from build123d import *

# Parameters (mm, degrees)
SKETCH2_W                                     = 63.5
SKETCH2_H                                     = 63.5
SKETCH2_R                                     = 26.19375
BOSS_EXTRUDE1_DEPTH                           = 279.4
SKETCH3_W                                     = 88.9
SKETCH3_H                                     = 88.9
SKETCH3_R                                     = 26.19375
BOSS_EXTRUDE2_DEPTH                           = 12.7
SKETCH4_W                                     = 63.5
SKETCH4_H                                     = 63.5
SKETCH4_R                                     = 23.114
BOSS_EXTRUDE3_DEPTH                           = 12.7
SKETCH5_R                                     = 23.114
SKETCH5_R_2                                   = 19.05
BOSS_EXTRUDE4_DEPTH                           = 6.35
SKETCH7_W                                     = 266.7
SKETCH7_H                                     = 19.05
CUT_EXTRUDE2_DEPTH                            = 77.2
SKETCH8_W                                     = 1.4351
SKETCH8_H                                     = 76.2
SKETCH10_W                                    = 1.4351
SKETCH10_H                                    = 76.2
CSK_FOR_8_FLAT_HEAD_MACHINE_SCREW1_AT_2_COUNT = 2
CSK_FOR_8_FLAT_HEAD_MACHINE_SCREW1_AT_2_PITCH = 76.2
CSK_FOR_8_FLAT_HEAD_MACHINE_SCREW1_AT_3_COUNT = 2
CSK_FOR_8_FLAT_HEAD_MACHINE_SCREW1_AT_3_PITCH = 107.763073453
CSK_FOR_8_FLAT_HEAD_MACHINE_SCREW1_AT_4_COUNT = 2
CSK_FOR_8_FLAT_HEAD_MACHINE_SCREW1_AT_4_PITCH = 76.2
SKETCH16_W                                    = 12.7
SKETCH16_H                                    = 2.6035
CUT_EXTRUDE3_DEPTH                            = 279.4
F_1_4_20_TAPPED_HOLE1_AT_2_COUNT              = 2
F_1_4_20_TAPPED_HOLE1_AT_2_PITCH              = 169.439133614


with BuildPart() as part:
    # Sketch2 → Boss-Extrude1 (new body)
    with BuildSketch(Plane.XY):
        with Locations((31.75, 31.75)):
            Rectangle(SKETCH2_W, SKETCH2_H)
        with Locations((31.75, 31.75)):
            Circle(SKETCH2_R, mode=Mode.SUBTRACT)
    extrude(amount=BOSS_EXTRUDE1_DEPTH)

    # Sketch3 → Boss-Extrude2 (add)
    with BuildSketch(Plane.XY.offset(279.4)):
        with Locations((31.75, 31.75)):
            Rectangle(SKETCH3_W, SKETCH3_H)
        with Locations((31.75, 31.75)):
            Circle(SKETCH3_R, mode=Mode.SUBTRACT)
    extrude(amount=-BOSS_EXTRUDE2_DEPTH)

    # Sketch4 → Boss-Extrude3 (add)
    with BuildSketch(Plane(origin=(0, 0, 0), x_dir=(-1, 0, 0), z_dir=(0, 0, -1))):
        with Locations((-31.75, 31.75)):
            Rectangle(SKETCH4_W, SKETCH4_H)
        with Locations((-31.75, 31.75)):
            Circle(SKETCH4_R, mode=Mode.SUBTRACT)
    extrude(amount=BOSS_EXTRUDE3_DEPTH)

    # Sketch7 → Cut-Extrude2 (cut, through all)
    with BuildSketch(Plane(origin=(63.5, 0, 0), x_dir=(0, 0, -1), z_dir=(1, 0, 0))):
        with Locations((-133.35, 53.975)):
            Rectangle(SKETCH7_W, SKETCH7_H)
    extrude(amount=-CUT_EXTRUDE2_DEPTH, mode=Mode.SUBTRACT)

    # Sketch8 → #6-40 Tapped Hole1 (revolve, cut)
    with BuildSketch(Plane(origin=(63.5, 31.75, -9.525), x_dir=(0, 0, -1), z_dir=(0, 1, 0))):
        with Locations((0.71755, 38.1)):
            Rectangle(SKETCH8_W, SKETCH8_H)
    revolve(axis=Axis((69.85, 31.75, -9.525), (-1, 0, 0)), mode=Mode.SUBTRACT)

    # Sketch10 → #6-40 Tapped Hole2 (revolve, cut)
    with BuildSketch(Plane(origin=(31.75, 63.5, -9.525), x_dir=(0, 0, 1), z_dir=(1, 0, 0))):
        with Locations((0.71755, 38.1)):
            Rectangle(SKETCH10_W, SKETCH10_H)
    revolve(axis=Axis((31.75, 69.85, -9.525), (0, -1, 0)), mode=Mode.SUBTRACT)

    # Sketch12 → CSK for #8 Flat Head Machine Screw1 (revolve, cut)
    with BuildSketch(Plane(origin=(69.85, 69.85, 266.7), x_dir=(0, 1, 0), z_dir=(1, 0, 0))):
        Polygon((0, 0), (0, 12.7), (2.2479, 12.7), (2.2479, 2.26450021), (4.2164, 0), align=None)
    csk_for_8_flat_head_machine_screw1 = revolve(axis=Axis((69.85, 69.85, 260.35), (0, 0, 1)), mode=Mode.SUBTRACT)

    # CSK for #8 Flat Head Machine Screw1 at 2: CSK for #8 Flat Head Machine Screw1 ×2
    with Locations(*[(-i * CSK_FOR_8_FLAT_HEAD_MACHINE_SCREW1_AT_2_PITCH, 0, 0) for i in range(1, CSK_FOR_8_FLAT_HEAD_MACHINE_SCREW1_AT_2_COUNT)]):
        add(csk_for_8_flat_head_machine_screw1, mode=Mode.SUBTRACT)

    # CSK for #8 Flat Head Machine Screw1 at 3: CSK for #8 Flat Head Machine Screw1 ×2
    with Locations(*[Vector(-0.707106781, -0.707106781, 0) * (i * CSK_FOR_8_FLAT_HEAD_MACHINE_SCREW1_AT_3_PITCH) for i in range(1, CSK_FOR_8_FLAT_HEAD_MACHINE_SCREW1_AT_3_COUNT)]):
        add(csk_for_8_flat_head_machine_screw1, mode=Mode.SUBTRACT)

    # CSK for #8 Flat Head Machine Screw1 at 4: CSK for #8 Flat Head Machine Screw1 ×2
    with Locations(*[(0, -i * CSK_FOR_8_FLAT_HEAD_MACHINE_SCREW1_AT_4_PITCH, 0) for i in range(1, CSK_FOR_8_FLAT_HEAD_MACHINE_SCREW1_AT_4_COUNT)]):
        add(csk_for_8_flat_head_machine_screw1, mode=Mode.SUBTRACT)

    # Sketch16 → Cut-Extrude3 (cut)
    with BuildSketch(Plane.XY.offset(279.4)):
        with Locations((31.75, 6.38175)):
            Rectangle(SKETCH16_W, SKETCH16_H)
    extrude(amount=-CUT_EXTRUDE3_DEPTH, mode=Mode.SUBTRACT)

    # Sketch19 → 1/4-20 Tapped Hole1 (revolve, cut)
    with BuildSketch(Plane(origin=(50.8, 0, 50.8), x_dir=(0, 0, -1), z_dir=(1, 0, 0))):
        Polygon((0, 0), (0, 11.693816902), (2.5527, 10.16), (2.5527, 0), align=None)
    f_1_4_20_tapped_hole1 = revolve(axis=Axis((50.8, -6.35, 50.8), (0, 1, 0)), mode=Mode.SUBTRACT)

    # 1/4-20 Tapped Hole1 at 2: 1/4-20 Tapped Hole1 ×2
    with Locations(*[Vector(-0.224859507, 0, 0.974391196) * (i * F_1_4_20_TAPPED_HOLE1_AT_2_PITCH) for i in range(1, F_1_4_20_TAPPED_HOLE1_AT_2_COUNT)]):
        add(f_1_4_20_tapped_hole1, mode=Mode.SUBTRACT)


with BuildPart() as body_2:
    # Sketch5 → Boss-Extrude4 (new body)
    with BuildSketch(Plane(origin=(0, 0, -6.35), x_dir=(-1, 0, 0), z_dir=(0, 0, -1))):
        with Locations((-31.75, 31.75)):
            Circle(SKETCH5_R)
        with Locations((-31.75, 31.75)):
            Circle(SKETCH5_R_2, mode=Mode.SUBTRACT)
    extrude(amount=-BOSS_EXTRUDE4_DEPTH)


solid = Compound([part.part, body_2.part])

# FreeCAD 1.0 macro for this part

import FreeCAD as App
import Part
import Sketcher
from FreeCAD import Vector
Q = App.Units.Quantity

doc = App.newDocument("Part")
body = doc.addObject("PartDesign::Body", "Body")

sketch1 = body.newObject("Sketcher::SketchObject", "Sketch")
sketch1.AttachmentSupport = (doc.getObject("XY_Plane"), [""])
sketch1.MapMode = "FlatFace"
sketch1.addGeometry([
    Part.LineSegment(Vector(0, 64, 0), Vector(0, 0, 0)),
    Part.LineSegment(Vector(0, 0, 0), Vector(64, 0, 0)),
    Part.LineSegment(Vector(64, 0, 0), Vector(64, 64, 0)),
    Part.LineSegment(Vector(64, 64, 0), Vector(0, 64, 0)),
    Part.Circle(Vector(32, 32, 0), Vector(0, 0, 1), 26),
], False)
sketch1.addConstraint([
    Sketcher.Constraint("Coincident", 0, 2, 1, 1),
    Sketcher.Constraint("Coincident", 1, 2, 2, 1),
    Sketcher.Constraint("Coincident", 2, 2, 3, 1),
    Sketcher.Constraint("Coincident", 3, 2, 0, 1),
    Sketcher.Constraint("Vertical", 0),
    Sketcher.Constraint("Horizontal", 1),
    Sketcher.Constraint("Vertical", 2),
    Sketcher.Constraint("Horizontal", 3),
    Sketcher.Constraint("Coincident", 0, 2, -1, 1),
    Sketcher.Constraint("Equal", 3, 0),
    Sketcher.Constraint("Diameter", 4, Q("2.0625 in")),
    Sketcher.Constraint("DistanceX", 1, 1, 1, 2, Q("2.5 in")),
    Sketcher.Constraint("DistanceX", -1, 1, 4, 3, Q("1.25 in")),
    Sketcher.Constraint("DistanceY", -1, 1, 4, 3, Q("1.25 in")),
])
pad1 = body.newObject("PartDesign::Pad", "Pad")
pad1.Profile = sketch1
pad1.Length = Q("11 in")

sketch2 = body.newObject("Sketcher::SketchObject", "Sketch001")
sketch2.AttachmentSupport = (doc.getObject("XY_Plane"), [""])
sketch2.MapMode = "FlatFace"
sketch2.AttachmentOffset = App.Placement(Vector(0, 0, 11 * 25.4), App.Rotation())
sketch2.addGeometry([
    Part.LineSegment(Vector(-13, 76, 0), Vector(-13, -13, 0)),
    Part.LineSegment(Vector(-13, -13, 0), Vector(76, -13, 0)),
    Part.LineSegment(Vector(76, -13, 0), Vector(76, 76, 0)),
    Part.LineSegment(Vector(76, 76, 0), Vector(-13, 76, 0)),
    Part.Circle(Vector(32, 32, 0), Vector(0, 0, 1), 26),
], False)
sketch2.addConstraint([
    Sketcher.Constraint("Coincident", 0, 2, 1, 1),
    Sketcher.Constraint("Coincident", 1, 2, 2, 1),
    Sketcher.Constraint("Coincident", 2, 2, 3, 1),
    Sketcher.Constraint("Coincident", 3, 2, 0, 1),
    Sketcher.Constraint("Vertical", 0),
    Sketcher.Constraint("Horizontal", 1),
    Sketcher.Constraint("Vertical", 2),
    Sketcher.Constraint("Horizontal", 3),
    Sketcher.Constraint("Equal", 3, 0),
    Sketcher.Constraint("Diameter", 4, Q("2.0625 in")),
    Sketcher.Constraint("DistanceX", 1, 1, 1, 2, Q("3.5 in")),
    Sketcher.Constraint("DistanceX", -1, 1, 1, 2, Q("3 in")),
    Sketcher.Constraint("DistanceY", -1, 1, 2, 2, Q("3 in")),
    Sketcher.Constraint("DistanceX", -1, 1, 4, 3, Q("1.25 in")),
    Sketcher.Constraint("DistanceY", -1, 1, 4, 3, Q("1.25 in")),
])
pad2 = body.newObject("PartDesign::Pad", "Pad001")
pad2.Profile = sketch2
pad2.Length = Q("0.5 in")
pad2.Reversed = True

sketch3 = body.newObject("Sketcher::SketchObject", "Sketch002")
sketch3.AttachmentSupport = (doc.getObject("XY_Plane"), [""])
sketch3.MapMode = "FlatFace"
sketch3.addGeometry([
    Part.LineSegment(Vector(64, 64, 0), Vector(64, 0, 0)),
    Part.LineSegment(Vector(64, 0, 0), Vector(0, 0, 0)),
    Part.LineSegment(Vector(0, 0, 0), Vector(0, 64, 0)),
    Part.LineSegment(Vector(0, 64, 0), Vector(64, 64, 0)),
    Part.Circle(Vector(32, 32, 0), Vector(0, 0, 1), 23),
], False)
sketch3.addConstraint([
    Sketcher.Constraint("Coincident", 0, 2, 1, 1),
    Sketcher.Constraint("Coincident", 1, 2, 2, 1),
    Sketcher.Constraint("Coincident", 2, 2, 3, 1),
    Sketcher.Constraint("Coincident", 3, 2, 0, 1),
    Sketcher.Constraint("Vertical", 0),
    Sketcher.Constraint("Horizontal", 1),
    Sketcher.Constraint("Vertical", 2),
    Sketcher.Constraint("Horizontal", 3),
    Sketcher.Constraint("Coincident", 1, 2, -1, 1),
    Sketcher.Constraint("Equal", 3, 0),
    Sketcher.Constraint("Diameter", 4, Q("1.82 in")),
    Sketcher.Constraint("DistanceX", 1, 2, 1, 1, Q("2.5 in")),
    Sketcher.Constraint("DistanceX", -1, 1, 4, 3, Q("1.25 in")),
    Sketcher.Constraint("DistanceY", -1, 1, 4, 3, Q("1.25 in")),
])
pad3 = body.newObject("PartDesign::Pad", "Pad002")
pad3.Profile = sketch3
pad3.Length = Q("0.5 in")
pad3.Reversed = True

sketch4 = body.newObject("Sketcher::SketchObject", "Sketch003")
sketch4.AttachmentSupport = (doc.getObject("YZ_Plane"), [""])
sketch4.MapMode = "FlatFace"
sketch4.AttachmentOffset = App.Placement(Vector(0, 0, 2.5 * 25.4), App.Rotation())
sketch4.addGeometry([
    Part.LineSegment(Vector(64, 267, 0), Vector(44, 267, 0)),
    Part.LineSegment(Vector(44, 267, 0), Vector(44, 0, 0)),
    Part.LineSegment(Vector(44, 0, 0), Vector(64, 0, 0)),
    Part.LineSegment(Vector(64, 0, 0), Vector(64, 267, 0)),
], False)
sketch4.addConstraint([
    Sketcher.Constraint("Coincident", 0, 2, 1, 1),
    Sketcher.Constraint("Coincident", 1, 2, 2, 1),
    Sketcher.Constraint("Coincident", 2, 2, 3, 1),
    Sketcher.Constraint("Coincident", 3, 2, 0, 1),
    Sketcher.Constraint("Horizontal", 0),
    Sketcher.Constraint("Vertical", 1),
    Sketcher.Constraint("Horizontal", 2),
    Sketcher.Constraint("Vertical", 3),
    Sketcher.Constraint("PointOnObject", 1, 2, -1),
    Sketcher.Constraint("DistanceY", 1, 2, 1, 1, Q("10.5 in")),
    Sketcher.Constraint("DistanceX", 0, 2, 0, 1, Q("0.75 in")),
    Sketcher.Constraint("DistanceX", -1, 1, 2, 2, Q("2.5 in")),
])
pocket1 = body.newObject("PartDesign::Pocket", "Pocket")
pocket1.Profile = sketch4
pocket1.Type = "ThroughAll"

sketch5 = body.newObject("Sketcher::SketchObject", "Sketch004")
sketch5.AttachmentSupport = (doc.getObject("XZ_Plane"), [""])
sketch5.MapMode = "FlatFace"
sketch5.AttachmentOffset = App.Placement(Vector(0, 0, -1.25 * 25.4), App.Rotation())
sketch5.addGeometry([
    Part.LineSegment(Vector(-12.7, -9.5, 0), Vector(63.5, -9.5, 0)),
    Part.LineSegment(Vector(63.5, -9.5, 0), Vector(63.5, -11, 0)),
    Part.LineSegment(Vector(63.5, -11, 0), Vector(-12.7, -11, 0)),
    Part.LineSegment(Vector(-12.7, -11, 0), Vector(-12.7, -9.5, 0)),
], False)
sketch5.addGeometry(Part.LineSegment(Vector(63.5, -9.5, 0), Vector(-12.7, -9.5, 0)), True)
sketch5.addConstraint([
    Sketcher.Constraint("Coincident", 0, 2, 1, 1),
    Sketcher.Constraint("Coincident", 1, 2, 2, 1),
    Sketcher.Constraint("Coincident", 2, 2, 3, 1),
    Sketcher.Constraint("Coincident", 3, 2, 0, 1),
    Sketcher.Constraint("Horizontal", 0),
    Sketcher.Constraint("Vertical", 1),
    Sketcher.Constraint("Horizontal", 2),
    Sketcher.Constraint("Vertical", 3),
    Sketcher.Constraint("Horizontal", 4),
    Sketcher.Constraint("Coincident", 4, 1, 0, 2),
    Sketcher.Constraint("Vertical", 2, 2, 4, 2),
    Sketcher.Constraint("DistanceX", 0, 1, 0, 2, Q("3 in")),
    Sketcher.Constraint("DistanceX", -1, 1, 0, 2, Q("2.5 in")),
    Sketcher.Constraint("DistanceY", 1, 2, 1, 1, Q("0.0565 in")),
    Sketcher.Constraint("DistanceY", 0, 2, -1, 1, Q("0.375 in")),
])
groove = body.newObject("PartDesign::Groove", "Groove")
groove.Profile = sketch5
groove.ReferenceAxis = (sketch5, ["Axis0"])
groove.Angle = 360

sketch6 = body.newObject("Sketcher::SketchObject", "Sketch005")
sketch6.AttachmentSupport = (doc.getObject("YZ_Plane"), [""])
sketch6.MapMode = "FlatFace"
sketch6.AttachmentOffset = App.Placement(Vector(0, 0, 1.25 * 25.4), App.Rotation())
sketch6.addGeometry([
    Part.LineSegment(Vector(-12.7, -9.5, 0), Vector(63.5, -9.5, 0)),
    Part.LineSegment(Vector(63.5, -9.5, 0), Vector(63.5, -8.1, 0)),
    Part.LineSegment(Vector(63.5, -8.1, 0), Vector(-12.7, -8.1, 0)),
    Part.LineSegment(Vector(-12.7, -8.1, 0), Vector(-12.7, -9.5, 0)),
], False)
sketch6.addGeometry(Part.LineSegment(Vector(63.5, -9.5, 0), Vector(-12.7, -9.5, 0)), True)
sketch6.addConstraint([
    Sketcher.Constraint("Coincident", 0, 2, 1, 1),
    Sketcher.Constraint("Coincident", 1, 2, 2, 1),
    Sketcher.Constraint("Coincident", 2, 2, 3, 1),
    Sketcher.Constraint("Coincident", 3, 2, 0, 1),
    Sketcher.Constraint("Horizontal", 0),
    Sketcher.Constraint("Vertical", 1),
    Sketcher.Constraint("Horizontal", 2),
    Sketcher.Constraint("Vertical", 3),
    Sketcher.Constraint("Horizontal", 4),
    Sketcher.Constraint("Coincident", 4, 1, 0, 2),
    Sketcher.Constraint("Vertical", 2, 2, 4, 2),
    Sketcher.Constraint("DistanceX", 0, 1, 0, 2, Q("3 in")),
    Sketcher.Constraint("DistanceX", -1, 1, 0, 2, Q("2.5 in")),
    Sketcher.Constraint("DistanceY", 1, 1, 1, 2, Q("0.0565 in")),
    Sketcher.Constraint("DistanceY", 0, 2, -1, 1, Q("0.375 in")),
])
groove2 = body.newObject("PartDesign::Groove", "Groove001")
groove2.Profile = sketch6
groove2.ReferenceAxis = (sketch6, ["Axis0"])
groove2.Angle = 360

sketch7 = body.newObject("Sketcher::SketchObject", "Sketch006")
sketch7.AttachmentSupport = (doc.getObject("YZ_Plane"), [""])
sketch7.MapMode = "FlatFace"
sketch7.AttachmentOffset = App.Placement(Vector(0, 0, 2.75 * 25.4), App.Rotation())
sketch7.addGeometry([
    Part.LineSegment(Vector(69.8, 279.4, 0), Vector(69.8, 266.7, 0)),
    Part.LineSegment(Vector(69.8, 266.7, 0), Vector(74.1, 266.7, 0)),
    Part.LineSegment(Vector(74.1, 266.7, 0), Vector(72.1, 269, 0)),
    Part.LineSegment(Vector(72.1, 269, 0), Vector(72.1, 279.4, 0)),
    Part.LineSegment(Vector(72.1, 279.4, 0), Vector(69.8, 279.4, 0)),
], False)
sketch7.addGeometry(Part.LineSegment(Vector(69.8, 266.7, 0), Vector(69.8, 279.4, 0)), True)
sketch7.addConstraint([
    Sketcher.Constraint("Coincident", 0, 2, 1, 1),
    Sketcher.Constraint("Coincident", 1, 2, 2, 1),
    Sketcher.Constraint("Coincident", 2, 2, 3, 1),
    Sketcher.Constraint("Coincident", 3, 2, 4, 1),
    Sketcher.Constraint("Coincident", 4, 2, 0, 1),
    Sketcher.Constraint("Vertical", 0),
    Sketcher.Constraint("Horizontal", 1),
    Sketcher.Constraint("Vertical", 3),
    Sketcher.Constraint("Horizontal", 4),
    Sketcher.Constraint("Vertical", 5),
    Sketcher.Constraint("Coincident", 5, 1, 0, 2),
    Sketcher.Constraint("Horizontal", 3, 2, 5, 2),
    Sketcher.Constraint("DistanceY", 0, 2, 0, 1, Q("0.5 in")),
    Sketcher.Constraint("DistanceY", -1, 1, 3, 2, Q("11 in")),
    Sketcher.Constraint("Angle", 2, Q("131 deg")),
    Sketcher.Constraint("DistanceX", 1, 1, 1, 2, Q("0.166 in")),
    Sketcher.Constraint("DistanceX", -1, 1, 0, 2, Q("2.75 in")),
    Sketcher.Constraint("DistanceX", 4, 2, 4, 1, Q("0.0885 in")),
])
groove3 = body.newObject("PartDesign::Groove", "Groove002")
groove3.Profile = sketch7
groove3.ReferenceAxis = (sketch7, ["Axis0"])
groove3.Angle = 360
doc.recompute()

linearpattern = body.newObject("PartDesign::LinearPattern", "LinearPattern")
linearpattern.Originals = [groove3]
linearpattern.Direction = (doc.getObject("X_Axis"), [""])
linearpattern.Mode = "offset"
linearpattern.Offset = Q("3 in")
linearpattern.Occurrences = 2
linearpattern.Reversed = True
body.Tip = linearpattern
doc.recompute()

datumline = body.newObject("PartDesign::Line", "DatumLine")
datumline.Placement = App.Placement(Vector(0, 0, 0), App.Rotation(Vector(0, 0, 1), Vector(-0.707106781, -0.707106781, 0)))
linearpattern2 = body.newObject("PartDesign::LinearPattern", "LinearPattern001")
linearpattern2.Originals = [groove3]
linearpattern2.Direction = (datumline, [""])
linearpattern2.Mode = "offset"
linearpattern2.Offset = 107.763073
linearpattern2.Occurrences = 2
body.Tip = linearpattern2
doc.recompute()

linearpattern3 = body.newObject("PartDesign::LinearPattern", "LinearPattern002")
linearpattern3.Originals = [groove3]
linearpattern3.Direction = (doc.getObject("Y_Axis"), [""])
linearpattern3.Mode = "offset"
linearpattern3.Offset = Q("3 in")
linearpattern3.Occurrences = 2
linearpattern3.Reversed = True
body.Tip = linearpattern3

sketch8 = body.newObject("Sketcher::SketchObject", "Sketch007")
sketch8.AttachmentSupport = (doc.getObject("XY_Plane"), [""])
sketch8.MapMode = "FlatFace"
sketch8.AttachmentOffset = App.Placement(Vector(0, 0, 11 * 25.4), App.Rotation())
sketch8.addGeometry([
    Part.LineSegment(Vector(25.4, 7.7, 0), Vector(25.4, 5.1, 0)),
    Part.LineSegment(Vector(25.4, 5.1, 0), Vector(38.1, 5.1, 0)),
    Part.LineSegment(Vector(38.1, 5.1, 0), Vector(38.1, 7.7, 0)),
    Part.LineSegment(Vector(38.1, 7.7, 0), Vector(25.4, 7.7, 0)),
], False)
sketch8.addConstraint([
    Sketcher.Constraint("Coincident", 0, 2, 1, 1),
    Sketcher.Constraint("Coincident", 1, 2, 2, 1),
    Sketcher.Constraint("Coincident", 2, 2, 3, 1),
    Sketcher.Constraint("Coincident", 3, 2, 0, 1),
    Sketcher.Constraint("Vertical", 0),
    Sketcher.Constraint("Horizontal", 1),
    Sketcher.Constraint("Vertical", 2),
    Sketcher.Constraint("Horizontal", 3),
    Sketcher.Constraint("DistanceX", 1, 1, 1, 2, Q("0.5 in")),
    Sketcher.Constraint("DistanceX", -1, 1, 0, 2, Q("1 in")),
    Sketcher.Constraint("DistanceY", -1, 1, 0, 2, Q("0.2 in")),
    Sketcher.Constraint("DistanceY", 0, 2, 0, 1, Q("0.1025 in")),
])
pocket2 = body.newObject("PartDesign::Pocket", "Pocket001")
pocket2.Profile = sketch8
pocket2.Length = Q("11 in")

sketch9 = body.newObject("Sketcher::SketchObject", "Sketch008")
sketch9.AttachmentSupport = (doc.getObject("YZ_Plane"), [""])
sketch9.MapMode = "FlatFace"
sketch9.AttachmentOffset = App.Placement(Vector(0, 0, 2 * 25.4), App.Rotation())
sketch9.addGeometry([
    Part.LineSegment(Vector(11.7, 50.8, 0), Vector(0, 50.8, 0)),
    Part.LineSegment(Vector(0, 50.8, 0), Vector(0, 48.2, 0)),
    Part.LineSegment(Vector(0, 48.2, 0), Vector(10.2, 48.2, 0)),
    Part.LineSegment(Vector(10.2, 48.2, 0), Vector(11.7, 50.8, 0)),
], False)
sketch9.addGeometry(Part.LineSegment(Vector(0, 50.8, 0), Vector(11.7, 50.8, 0)), True)
sketch9.addConstraint([
    Sketcher.Constraint("Coincident", 0, 2, 1, 1),
    Sketcher.Constraint("Coincident", 1, 2, 2, 1),
    Sketcher.Constraint("Coincident", 2, 2, 3, 1),
    Sketcher.Constraint("Coincident", 3, 2, 0, 1),
    Sketcher.Constraint("Horizontal", 0),
    Sketcher.Constraint("Vertical", 1),
    Sketcher.Constraint("Horizontal", 2),
    Sketcher.Constraint("Horizontal", 4),
    Sketcher.Constraint("Coincident", 4, 1, 0, 2),
    Sketcher.Constraint("PointOnObject", 0, 2, -2),
    Sketcher.Constraint("Equal", 0, 4),
    Sketcher.Constraint("DistanceX", 2, 1, 2, 2, Q("0.4 in")),
    Sketcher.Constraint("DistanceY", -1, 1, 0, 2, Q("2 in")),
    Sketcher.Constraint("Angle", 3, Q("59 deg")),
    Sketcher.Constraint("DistanceY", 1, 2, 1, 1, Q("0.1005 in")),
])
groove4 = body.newObject("PartDesign::Groove", "Groove003")
groove4.Profile = sketch9
groove4.ReferenceAxis = (sketch9, ["Axis0"])
groove4.Angle = 360
doc.recompute()

datumline2 = body.newObject("PartDesign::Line", "DatumLine001")
datumline2.Placement = App.Placement(Vector(0, 0, 0), App.Rotation(Vector(0, 0, 1), Vector(-0.224859507, 0, 0.974391196)))
linearpattern4 = body.newObject("PartDesign::LinearPattern", "LinearPattern003")
linearpattern4.Originals = [groove4]
linearpattern4.Direction = (datumline2, [""])
linearpattern4.Mode = "offset"
linearpattern4.Offset = 169.439134
linearpattern4.Occurrences = 2
body.Tip = linearpattern4
body2 = doc.addObject("PartDesign::Body", "Body001")

sketch10 = body2.newObject("Sketcher::SketchObject", "Sketch009")
sketch10.AttachmentSupport = (doc.getObject("XY_Plane001"), [""])
sketch10.MapMode = "FlatFace"
sketch10.AttachmentOffset = App.Placement(Vector(0, 0, -0.25 * 25.4), App.Rotation())
sketch10.addGeometry([
    Part.Circle(Vector(32, 32, 0), Vector(0, 0, 1), 23),
    Part.Circle(Vector(32, 32, 0), Vector(0, 0, 1), 19),
], False)
sketch10.addConstraint([
    Sketcher.Constraint("Coincident", 1, 3, 0, 3),
    Sketcher.Constraint("Diameter", 1, Q("1.5 in")),
    Sketcher.Constraint("Diameter", 0, Q("1.82 in")),
    Sketcher.Constraint("DistanceX", -1, 1, 0, 3, Q("1.25 in")),
    Sketcher.Constraint("DistanceY", -1, 1, 0, 3, Q("1.25 in")),
])
pad4 = body2.newObject("PartDesign::Pad", "Pad003")
pad4.Profile = sketch10
pad4.Length = Q("0.25 in")

doc.recompute()
